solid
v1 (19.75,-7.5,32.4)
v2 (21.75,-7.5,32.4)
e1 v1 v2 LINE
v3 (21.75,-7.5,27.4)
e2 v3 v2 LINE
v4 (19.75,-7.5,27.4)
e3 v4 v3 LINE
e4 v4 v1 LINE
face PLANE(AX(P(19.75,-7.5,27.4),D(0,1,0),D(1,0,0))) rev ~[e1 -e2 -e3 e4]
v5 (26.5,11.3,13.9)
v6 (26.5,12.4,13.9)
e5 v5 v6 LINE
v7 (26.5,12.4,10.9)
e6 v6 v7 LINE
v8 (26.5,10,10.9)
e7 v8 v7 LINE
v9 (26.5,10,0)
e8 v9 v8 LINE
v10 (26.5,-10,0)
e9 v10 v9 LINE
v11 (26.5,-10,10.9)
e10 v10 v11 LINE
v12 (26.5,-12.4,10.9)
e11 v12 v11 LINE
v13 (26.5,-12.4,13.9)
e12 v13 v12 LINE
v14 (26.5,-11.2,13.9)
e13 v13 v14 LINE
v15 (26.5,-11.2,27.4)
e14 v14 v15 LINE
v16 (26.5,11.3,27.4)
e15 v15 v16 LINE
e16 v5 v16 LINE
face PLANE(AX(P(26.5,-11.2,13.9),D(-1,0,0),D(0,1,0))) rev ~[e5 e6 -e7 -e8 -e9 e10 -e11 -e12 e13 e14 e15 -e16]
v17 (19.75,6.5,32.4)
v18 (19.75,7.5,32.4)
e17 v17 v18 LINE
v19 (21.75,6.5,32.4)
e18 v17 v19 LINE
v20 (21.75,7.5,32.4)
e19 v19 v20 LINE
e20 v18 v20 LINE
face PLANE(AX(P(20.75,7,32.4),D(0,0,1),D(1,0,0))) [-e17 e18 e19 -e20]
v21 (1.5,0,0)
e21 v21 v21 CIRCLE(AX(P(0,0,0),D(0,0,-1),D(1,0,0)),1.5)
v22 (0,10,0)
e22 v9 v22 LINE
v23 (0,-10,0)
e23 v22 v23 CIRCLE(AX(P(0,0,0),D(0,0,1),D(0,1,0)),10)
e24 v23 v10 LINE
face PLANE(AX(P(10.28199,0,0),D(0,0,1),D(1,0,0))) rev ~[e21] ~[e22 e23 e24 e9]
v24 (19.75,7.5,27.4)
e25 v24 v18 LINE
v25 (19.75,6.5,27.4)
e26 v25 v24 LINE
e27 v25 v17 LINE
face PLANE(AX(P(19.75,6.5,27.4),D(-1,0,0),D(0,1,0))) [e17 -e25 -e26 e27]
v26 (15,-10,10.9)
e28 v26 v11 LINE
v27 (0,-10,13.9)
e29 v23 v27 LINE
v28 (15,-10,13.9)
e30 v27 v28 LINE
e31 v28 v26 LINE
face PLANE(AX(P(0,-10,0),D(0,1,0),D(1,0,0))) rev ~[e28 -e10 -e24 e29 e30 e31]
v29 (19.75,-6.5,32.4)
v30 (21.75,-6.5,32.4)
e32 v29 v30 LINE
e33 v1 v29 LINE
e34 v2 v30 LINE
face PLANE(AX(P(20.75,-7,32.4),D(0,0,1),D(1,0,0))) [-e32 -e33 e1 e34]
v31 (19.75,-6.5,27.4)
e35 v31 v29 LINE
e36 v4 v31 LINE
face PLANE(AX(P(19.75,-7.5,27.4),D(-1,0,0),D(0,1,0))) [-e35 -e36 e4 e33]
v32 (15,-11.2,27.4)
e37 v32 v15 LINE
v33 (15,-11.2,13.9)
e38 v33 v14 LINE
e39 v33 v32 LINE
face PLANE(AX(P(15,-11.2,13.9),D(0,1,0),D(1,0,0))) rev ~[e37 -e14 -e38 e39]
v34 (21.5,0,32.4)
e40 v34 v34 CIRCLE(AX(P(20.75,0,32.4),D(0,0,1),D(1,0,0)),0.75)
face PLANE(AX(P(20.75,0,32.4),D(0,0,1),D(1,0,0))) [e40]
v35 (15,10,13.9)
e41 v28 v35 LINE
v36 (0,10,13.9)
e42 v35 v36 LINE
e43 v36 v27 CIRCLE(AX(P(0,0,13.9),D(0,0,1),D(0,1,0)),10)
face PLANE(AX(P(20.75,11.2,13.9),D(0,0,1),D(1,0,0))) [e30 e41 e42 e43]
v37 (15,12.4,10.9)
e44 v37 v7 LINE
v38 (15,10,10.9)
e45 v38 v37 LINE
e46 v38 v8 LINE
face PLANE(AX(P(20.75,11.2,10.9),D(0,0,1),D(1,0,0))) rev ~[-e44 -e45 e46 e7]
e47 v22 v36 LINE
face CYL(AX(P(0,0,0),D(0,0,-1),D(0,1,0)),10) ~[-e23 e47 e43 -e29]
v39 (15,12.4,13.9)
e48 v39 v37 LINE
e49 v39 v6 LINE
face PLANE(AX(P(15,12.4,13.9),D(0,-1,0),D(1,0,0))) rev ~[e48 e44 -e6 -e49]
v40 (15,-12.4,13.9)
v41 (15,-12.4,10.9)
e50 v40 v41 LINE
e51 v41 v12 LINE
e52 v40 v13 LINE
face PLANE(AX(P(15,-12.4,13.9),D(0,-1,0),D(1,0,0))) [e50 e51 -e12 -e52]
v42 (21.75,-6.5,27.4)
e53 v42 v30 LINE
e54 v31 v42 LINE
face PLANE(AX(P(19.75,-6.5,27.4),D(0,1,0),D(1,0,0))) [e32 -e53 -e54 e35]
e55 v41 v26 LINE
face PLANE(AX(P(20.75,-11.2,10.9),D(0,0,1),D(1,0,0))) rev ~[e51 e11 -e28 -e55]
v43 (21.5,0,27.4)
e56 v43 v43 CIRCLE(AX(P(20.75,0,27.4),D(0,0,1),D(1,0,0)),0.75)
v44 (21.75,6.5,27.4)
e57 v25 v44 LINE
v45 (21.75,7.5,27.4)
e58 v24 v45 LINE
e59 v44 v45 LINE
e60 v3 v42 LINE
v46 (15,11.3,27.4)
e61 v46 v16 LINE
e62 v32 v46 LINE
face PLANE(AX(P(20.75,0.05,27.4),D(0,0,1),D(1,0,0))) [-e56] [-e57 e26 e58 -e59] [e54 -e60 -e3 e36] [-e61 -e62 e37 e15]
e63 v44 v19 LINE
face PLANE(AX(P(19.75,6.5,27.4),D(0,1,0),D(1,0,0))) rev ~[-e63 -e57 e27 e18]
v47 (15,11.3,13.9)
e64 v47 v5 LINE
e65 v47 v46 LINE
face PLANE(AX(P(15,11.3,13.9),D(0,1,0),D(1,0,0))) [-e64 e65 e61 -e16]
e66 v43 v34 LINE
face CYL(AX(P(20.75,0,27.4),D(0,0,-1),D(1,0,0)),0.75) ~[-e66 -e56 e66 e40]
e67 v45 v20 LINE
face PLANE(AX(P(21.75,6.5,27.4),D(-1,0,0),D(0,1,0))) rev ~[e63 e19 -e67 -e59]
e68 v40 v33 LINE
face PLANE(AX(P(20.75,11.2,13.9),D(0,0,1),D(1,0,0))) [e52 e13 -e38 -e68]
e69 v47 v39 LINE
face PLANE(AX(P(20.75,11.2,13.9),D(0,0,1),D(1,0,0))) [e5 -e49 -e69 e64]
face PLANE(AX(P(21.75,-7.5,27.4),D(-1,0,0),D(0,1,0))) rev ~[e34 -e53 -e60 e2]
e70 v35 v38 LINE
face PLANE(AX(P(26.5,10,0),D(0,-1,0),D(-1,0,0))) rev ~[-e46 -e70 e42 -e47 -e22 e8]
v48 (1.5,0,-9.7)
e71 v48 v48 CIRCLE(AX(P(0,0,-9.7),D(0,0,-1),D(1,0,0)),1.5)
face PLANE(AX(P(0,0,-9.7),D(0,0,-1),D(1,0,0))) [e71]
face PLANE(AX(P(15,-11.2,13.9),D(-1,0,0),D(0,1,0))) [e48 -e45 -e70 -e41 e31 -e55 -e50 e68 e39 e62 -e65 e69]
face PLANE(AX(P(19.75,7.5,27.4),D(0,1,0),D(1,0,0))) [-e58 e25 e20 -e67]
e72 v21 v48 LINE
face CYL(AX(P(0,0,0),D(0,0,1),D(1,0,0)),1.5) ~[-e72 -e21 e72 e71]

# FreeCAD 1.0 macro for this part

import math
import FreeCAD as App
import Part
import Sketcher

V = App.Vector
Q = App.Units.Quantity


def add_polygon(sketch, points):
    """Adds a closed chain of lines whose ends are joined by coincident constraints."""
    first, n = sketch.GeometryCount, len(points)
    for a, b in zip(points, points[1:] + points[:1]):
        sketch.addGeometry(Part.LineSegment(App.Vector(*a, 0), App.Vector(*b, 0)), False)
    for i in range(n):
        sketch.addConstraint(Sketcher.Constraint("Coincident", first + i, 2, first + (i + 1) % n, 1))

doc = App.newDocument("Part")
params = doc.addObject("Spreadsheet::Sheet", "Params")
for row, (alias, value) in enumerate([
    ("sketch1_radius", "10 mm"),
    ("sketch1_width", "26.5 mm"),
    ("pad1_length", "13.9 mm"),
    ("sketch2_diameter", "3 mm"),
    ("pad2_length", "9.7 mm"),
    ("sketch3_width", "11.5 mm"),
    ("sketch3_height", "2.4 mm"),
    ("pad3_length", "3 mm"),
    ("sketch4_width", "11.5 mm"),
    ("sketch4_height", "22.5 mm"),
    ("pad4_length", "13.5 mm"),
    ("sketch5_diameter", "1.5 mm"),
    ("sketch5_width", "2 mm"),
    ("sketch5_height", "1 mm"),
    ("pad5_length", "5 mm"),
], start=1):
    params.set(f"A{row}", alias)
    params.set(f"B{row}", "=" + value)
    params.setAlias(f"B{row}", alias)

body = doc.addObject("PartDesign::Body", "Body")

sketch1 = body.newObject("Sketcher::SketchObject", "Sketch")
sketch1.AttachmentSupport = (doc.getObject("XY_Plane"), [""])
sketch1.MapMode = "FlatFace"
sketch1.addGeometry(Part.LineSegment(V(26.5, 10, 0), V(0, 10, 0)), False)
sketch1.addGeometry(Part.ArcOfCircle(Part.Circle(V(0, 0, 0), V(0, 0, 1), 10), math.radians(90), math.radians(270)), False)
sketch1.addGeometry(Part.LineSegment(V(0, -10, 0), V(26.5, -10, 0)), False)
sketch1.addGeometry(Part.LineSegment(V(26.5, -10, 0), V(26.5, 10, 0)), False)
sketch1.addConstraint(Sketcher.Constraint("Tangent", 0, 2, 1, 1))
sketch1.addConstraint(Sketcher.Constraint("Tangent", 1, 2, 2, 1))
sketch1.addConstraint(Sketcher.Constraint("Coincident", 2, 2, 3, 1))
sketch1.addConstraint(Sketcher.Constraint("Coincident", 3, 2, 0, 1))
sketch1.addConstraint(Sketcher.Constraint("Horizontal", 0))
sketch1.addConstraint(Sketcher.Constraint("Horizontal", 2))
sketch1.addConstraint(Sketcher.Constraint("Vertical", 3))
sketch1.addConstraint(Sketcher.Constraint("Coincident", 1, 3, -1, 1))
sketch1.addConstraint(Sketcher.Constraint("Radius", 1, Q("10 mm")))
sketch1.addConstraint(Sketcher.Constraint("DistanceX", 0, 2, 0, 1, Q("26.5 mm")))
sketch1.setExpression("Constraints[8]", "Params.sketch1_radius")
sketch1.setExpression("Constraints[9]", "Params.sketch1_width")
pad1 = body.newObject("PartDesign::Pad", "Pad")
pad1.Profile = sketch1
pad1.setExpression("Length", "Params.pad1_length")

sketch2 = body.newObject("Sketcher::SketchObject", "Sketch001")
sketch2.AttachmentSupport = (doc.getObject("XY_Plane"), [""])
sketch2.MapMode = "FlatFace"
sketch2.addGeometry(Part.Circle(V(0, 0, 0), V(0, 0, 1), 1.5), False)
sketch2.addConstraint(Sketcher.Constraint("Coincident", 0, 3, -1, 1))
sketch2.addConstraint(Sketcher.Constraint("Diameter", 0, Q("3 mm")))
sketch2.setExpression("Constraints[1]", "Params.sketch2_diameter")
pad2 = body.newObject("PartDesign::Pad", "Pad001")
pad2.Profile = sketch2
pad2.setExpression("Length", "Params.pad2_length")
pad2.Reversed = True

sketch3 = body.newObject("Sketcher::SketchObject", "Sketch002")
sketch3.AttachmentSupport = (doc.getObject("XY_Plane"), [""])
sketch3.MapMode = "FlatFace"
sketch3.AttachmentOffset = App.Placement(V(0, 0, 13.9), App.Rotation())
add_polygon(sketch3, [(15, 12.4), (15, 10), (26.5, 10), (26.5, 12.4)])
add_polygon(sketch3, [(15, -10), (15, -12.4), (26.5, -12.4), (26.5, -10)])
sketch3.addConstraint(Sketcher.Constraint("Vertical", 0))
sketch3.addConstraint(Sketcher.Constraint("Horizontal", 1))
sketch3.addConstraint(Sketcher.Constraint("Vertical", 2))
sketch3.addConstraint(Sketcher.Constraint("Horizontal", 3))
sketch3.addConstraint(Sketcher.Constraint("Vertical", 4))
sketch3.addConstraint(Sketcher.Constraint("Horizontal", 5))
sketch3.addConstraint(Sketcher.Constraint("Vertical", 6))
sketch3.addConstraint(Sketcher.Constraint("Horizontal", 7))
sketch3.addConstraint(Sketcher.Constraint("Symmetric", 3, 2, 4, 2, -1))
sketch3.addConstraint(Sketcher.Constraint("Symmetric", 1, 2, 6, 2, -1))
sketch3.addConstraint(Sketcher.Constraint("DistanceX", 1, 1, 1, 2, Q("11.5 mm")))
sketch3.addConstraint(Sketcher.Constraint("DistanceY", 0, 2, 0, 1, Q("2.4 mm")))
sketch3.addConstraint(Sketcher.Constraint("DistanceX", -1, 1, 0, 2, Q("15 mm")))
sketch3.addConstraint(Sketcher.Constraint("DistanceY", -1, 1, 0, 2, Q("10 mm")))
sketch3.setExpression("Constraints[18]", "Params.sketch3_width")
sketch3.setExpression("Constraints[19]", "Params.sketch3_height")
pad3 = body.newObject("PartDesign::Pad", "Pad002")
pad3.Profile = sketch3
pad3.setExpression("Length", "Params.pad3_length")
pad3.Reversed = True

sketch4 = body.newObject("Sketcher::SketchObject", "Sketch003")
sketch4.AttachmentSupport = (doc.getObject("XY_Plane"), [""])
sketch4.MapMode = "FlatFace"
sketch4.AttachmentOffset = App.Placement(V(0, 0, 13.9), App.Rotation())
add_polygon(sketch4, [(15, 11.3), (15, -11.2), (26.5, -11.2), (26.5, 11.3)])
sketch4.addConstraint(Sketcher.Constraint("Vertical", 0))
sketch4.addConstraint(Sketcher.Constraint("Horizontal", 1))
sketch4.addConstraint(Sketcher.Constraint("Vertical", 2))
sketch4.addConstraint(Sketcher.Constraint("Horizontal", 3))
sketch4.addConstraint(Sketcher.Constraint("DistanceX", 1, 1, 1, 2, Q("11.5 mm")))
sketch4.addConstraint(Sketcher.Constraint("DistanceY", 0, 2, 0, 1, Q("22.5 mm")))
sketch4.addConstraint(Sketcher.Constraint("DistanceX", -1, 1, 0, 2, Q("15 mm")))
sketch4.addConstraint(Sketcher.Constraint("DistanceY", 0, 2, -1, 1, Q("11.2 mm")))
sketch4.setExpression("Constraints[8]", "Params.sketch4_width")
sketch4.setExpression("Constraints[9]", "Params.sketch4_height")
pad4 = body.newObject("PartDesign::Pad", "Pad003")
pad4.Profile = sketch4
pad4.setExpression("Length", "Params.pad4_length")

sketch5 = body.newObject("Sketcher::SketchObject", "Sketch004")
sketch5.AttachmentSupport = (doc.getObject("XY_Plane"), [""])
sketch5.MapMode = "FlatFace"
sketch5.AttachmentOffset = App.Placement(V(0, 0, 27.4), App.Rotation())
sketch5.addGeometry(Part.Circle(V(20.75, 0, 0), V(0, 0, 1), 0.75), False)
add_polygon(sketch5, [(19.75, 7.5), (19.75, 6.5), (21.75, 6.5), (21.75, 7.5)])
add_polygon(sketch5, [(19.75, -6.5), (19.75, -7.5), (21.75, -7.5), (21.75, -6.5)])
sketch5.addConstraint(Sketcher.Constraint("Vertical", 1))
sketch5.addConstraint(Sketcher.Constraint("Horizontal", 2))
sketch5.addConstraint(Sketcher.Constraint("Vertical", 3))
sketch5.addConstraint(Sketcher.Constraint("Horizontal", 4))
sketch5.addConstraint(Sketcher.Constraint("Vertical", 5))
sketch5.addConstraint(Sketcher.Constraint("Horizontal", 6))
sketch5.addConstraint(Sketcher.Constraint("Vertical", 7))
sketch5.addConstraint(Sketcher.Constraint("Horizontal", 8))
sketch5.addConstraint(Sketcher.Constraint("Symmetric", 4, 2, 5, 2, -1))
sketch5.addConstraint(Sketcher.Constraint("Symmetric", 2, 2, 7, 2, -1))
sketch5.addConstraint(Sketcher.Constraint("PointOnObject", 0, 3, -1))
sketch5.addConstraint(Sketcher.Constraint("Diameter", 0, Q("1.5 mm")))
sketch5.addConstraint(Sketcher.Constraint("DistanceX", 2, 1, 2, 2, Q("2 mm")))
sketch5.addConstraint(Sketcher.Constraint("DistanceY", 1, 2, 1, 1, Q("1 mm")))
sketch5.addConstraint(Sketcher.Constraint("DistanceX", 1, 2, 0, 3, Q("1 mm")))
sketch5.addConstraint(Sketcher.Constraint("DistanceY", 5, 2, 1, 2, Q("14 mm")))
sketch5.addConstraint(Sketcher.Constraint("DistanceX", -1, 1, 0, 3, Q("20.75 mm")))
sketch5.setExpression("Constraints[19]", "Params.sketch5_diameter")
sketch5.setExpression("Constraints[20]", "Params.sketch5_width")
sketch5.setExpression("Constraints[21]", "Params.sketch5_height")
pad5 = body.newObject("PartDesign::Pad", "Pad004")
pad5.Profile = sketch5
pad5.setExpression("Length", "Params.pad5_length")

doc.recompute()
